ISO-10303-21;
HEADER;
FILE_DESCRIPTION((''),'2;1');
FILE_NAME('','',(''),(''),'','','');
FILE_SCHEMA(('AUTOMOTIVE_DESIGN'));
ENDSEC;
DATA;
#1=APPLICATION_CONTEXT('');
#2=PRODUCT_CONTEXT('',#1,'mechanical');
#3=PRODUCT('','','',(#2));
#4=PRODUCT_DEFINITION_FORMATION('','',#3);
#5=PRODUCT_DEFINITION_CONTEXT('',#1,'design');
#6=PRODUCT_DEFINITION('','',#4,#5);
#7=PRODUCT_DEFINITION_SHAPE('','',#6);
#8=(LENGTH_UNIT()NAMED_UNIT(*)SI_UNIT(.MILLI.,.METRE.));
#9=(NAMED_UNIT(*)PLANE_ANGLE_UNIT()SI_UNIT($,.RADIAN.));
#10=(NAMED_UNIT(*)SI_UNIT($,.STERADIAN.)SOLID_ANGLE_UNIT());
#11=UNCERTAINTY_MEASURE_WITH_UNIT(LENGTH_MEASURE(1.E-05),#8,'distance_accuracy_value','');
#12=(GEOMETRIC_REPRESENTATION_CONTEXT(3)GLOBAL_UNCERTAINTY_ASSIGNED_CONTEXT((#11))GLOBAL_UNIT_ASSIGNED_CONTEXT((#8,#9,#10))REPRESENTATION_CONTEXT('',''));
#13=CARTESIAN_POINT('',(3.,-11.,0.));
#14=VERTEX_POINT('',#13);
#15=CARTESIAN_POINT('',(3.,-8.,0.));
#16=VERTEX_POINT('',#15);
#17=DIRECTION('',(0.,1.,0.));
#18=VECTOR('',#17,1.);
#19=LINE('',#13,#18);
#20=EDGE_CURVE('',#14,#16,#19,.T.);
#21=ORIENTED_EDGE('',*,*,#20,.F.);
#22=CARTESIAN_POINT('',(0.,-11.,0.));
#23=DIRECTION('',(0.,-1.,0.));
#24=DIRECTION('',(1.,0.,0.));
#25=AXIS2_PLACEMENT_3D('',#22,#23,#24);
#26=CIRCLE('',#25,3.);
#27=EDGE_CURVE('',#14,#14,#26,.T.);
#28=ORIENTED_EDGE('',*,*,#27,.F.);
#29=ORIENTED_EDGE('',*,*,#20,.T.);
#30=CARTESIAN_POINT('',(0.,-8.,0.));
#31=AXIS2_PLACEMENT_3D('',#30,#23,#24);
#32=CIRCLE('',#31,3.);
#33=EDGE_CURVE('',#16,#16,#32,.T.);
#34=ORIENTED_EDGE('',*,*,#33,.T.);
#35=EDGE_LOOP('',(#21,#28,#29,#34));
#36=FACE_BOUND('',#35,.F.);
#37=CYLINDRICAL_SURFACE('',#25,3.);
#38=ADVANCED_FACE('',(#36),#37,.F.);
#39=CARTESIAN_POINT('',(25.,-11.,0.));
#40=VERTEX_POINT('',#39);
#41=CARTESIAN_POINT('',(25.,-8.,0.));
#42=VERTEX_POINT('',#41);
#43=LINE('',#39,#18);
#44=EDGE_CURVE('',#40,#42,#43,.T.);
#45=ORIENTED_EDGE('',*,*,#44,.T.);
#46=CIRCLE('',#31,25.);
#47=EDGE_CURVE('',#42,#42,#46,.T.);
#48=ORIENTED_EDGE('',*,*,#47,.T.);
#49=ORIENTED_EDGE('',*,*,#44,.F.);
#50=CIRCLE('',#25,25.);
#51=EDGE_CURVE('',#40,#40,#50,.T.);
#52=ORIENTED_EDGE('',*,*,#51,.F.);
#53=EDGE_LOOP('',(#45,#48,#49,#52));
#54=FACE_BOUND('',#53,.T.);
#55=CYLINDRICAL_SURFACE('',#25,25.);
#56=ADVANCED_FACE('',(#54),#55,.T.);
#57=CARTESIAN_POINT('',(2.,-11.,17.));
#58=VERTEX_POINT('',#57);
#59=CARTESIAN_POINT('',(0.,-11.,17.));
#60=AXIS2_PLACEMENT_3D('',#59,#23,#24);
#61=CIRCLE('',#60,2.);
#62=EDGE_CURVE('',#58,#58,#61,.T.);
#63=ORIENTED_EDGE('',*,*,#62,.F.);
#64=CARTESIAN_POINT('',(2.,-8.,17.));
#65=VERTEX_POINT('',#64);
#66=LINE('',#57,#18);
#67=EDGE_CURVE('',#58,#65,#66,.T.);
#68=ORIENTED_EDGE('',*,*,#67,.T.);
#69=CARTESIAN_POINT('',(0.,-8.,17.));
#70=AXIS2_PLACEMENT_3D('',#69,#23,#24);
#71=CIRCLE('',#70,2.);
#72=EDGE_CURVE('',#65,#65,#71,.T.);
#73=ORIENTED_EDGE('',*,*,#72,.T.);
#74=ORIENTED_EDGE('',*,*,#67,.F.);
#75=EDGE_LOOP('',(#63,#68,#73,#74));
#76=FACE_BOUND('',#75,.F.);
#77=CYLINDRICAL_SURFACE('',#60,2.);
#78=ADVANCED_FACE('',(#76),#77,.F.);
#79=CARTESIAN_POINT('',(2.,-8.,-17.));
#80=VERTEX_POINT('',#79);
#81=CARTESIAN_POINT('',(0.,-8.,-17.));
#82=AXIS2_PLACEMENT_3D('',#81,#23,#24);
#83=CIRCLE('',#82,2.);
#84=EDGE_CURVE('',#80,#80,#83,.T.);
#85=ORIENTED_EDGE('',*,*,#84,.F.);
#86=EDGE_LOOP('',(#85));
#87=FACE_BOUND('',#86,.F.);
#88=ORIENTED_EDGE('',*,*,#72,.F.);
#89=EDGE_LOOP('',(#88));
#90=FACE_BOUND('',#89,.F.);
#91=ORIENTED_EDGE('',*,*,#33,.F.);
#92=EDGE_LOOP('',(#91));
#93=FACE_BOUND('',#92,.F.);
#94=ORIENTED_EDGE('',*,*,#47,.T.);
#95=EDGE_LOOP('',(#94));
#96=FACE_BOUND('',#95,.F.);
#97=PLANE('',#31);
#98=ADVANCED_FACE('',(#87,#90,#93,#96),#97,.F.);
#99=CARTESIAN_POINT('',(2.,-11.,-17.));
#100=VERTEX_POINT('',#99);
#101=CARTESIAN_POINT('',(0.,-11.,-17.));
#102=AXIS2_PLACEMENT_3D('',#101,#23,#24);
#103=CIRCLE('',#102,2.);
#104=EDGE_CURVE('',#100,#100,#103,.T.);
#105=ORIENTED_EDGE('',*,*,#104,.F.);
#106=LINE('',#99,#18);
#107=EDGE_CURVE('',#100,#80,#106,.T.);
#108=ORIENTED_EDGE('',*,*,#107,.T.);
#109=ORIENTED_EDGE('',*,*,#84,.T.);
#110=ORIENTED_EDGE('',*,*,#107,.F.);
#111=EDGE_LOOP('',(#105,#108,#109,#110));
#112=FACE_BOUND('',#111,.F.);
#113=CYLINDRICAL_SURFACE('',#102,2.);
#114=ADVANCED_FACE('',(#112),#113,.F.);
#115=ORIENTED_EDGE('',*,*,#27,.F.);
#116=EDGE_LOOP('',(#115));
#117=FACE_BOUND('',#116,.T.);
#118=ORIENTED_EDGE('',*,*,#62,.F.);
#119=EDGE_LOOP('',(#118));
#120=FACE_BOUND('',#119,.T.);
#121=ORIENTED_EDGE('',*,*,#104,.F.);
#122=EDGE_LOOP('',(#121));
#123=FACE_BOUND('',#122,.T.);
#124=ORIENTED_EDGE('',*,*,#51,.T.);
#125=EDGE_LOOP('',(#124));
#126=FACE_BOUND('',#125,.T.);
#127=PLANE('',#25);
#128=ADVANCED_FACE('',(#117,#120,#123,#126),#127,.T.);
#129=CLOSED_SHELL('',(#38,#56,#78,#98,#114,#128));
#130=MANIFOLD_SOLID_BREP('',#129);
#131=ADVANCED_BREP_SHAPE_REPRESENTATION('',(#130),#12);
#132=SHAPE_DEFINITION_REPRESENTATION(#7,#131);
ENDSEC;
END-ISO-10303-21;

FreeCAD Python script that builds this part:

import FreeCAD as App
import Part
import Sketcher

doc = App.newDocument("Part")
body = doc.addObject("PartDesign::Body", "Body")

sketch1 = body.newObject("Sketcher::SketchObject", "Sketch")
sketch1.AttachmentSupport = (doc.getObject("XY_Plane"), [""])
sketch1.MapMode = "FlatFace"
sketch1.addGeometry([
    Part.Circle(App.Vector(0, 0, 0), App.Vector(0, 0, 1), 25),
    Part.Circle(App.Vector(0, -17, 0), App.Vector(0, 0, 1), 2),
    Part.Circle(App.Vector(0, 0, 0), App.Vector(0, 0, 1), 3),
    Part.Circle(App.Vector(0, 17, 0), App.Vector(0, 0, 1), 2),
], False)
sketch1.addConstraint([
    Sketcher.Constraint("Coincident", 0, 3, -1, 1),
    Sketcher.Constraint("Coincident", 2, 3, -1, 1),
    Sketcher.Constraint("Equal", 1, 3),
    Sketcher.Constraint("Symmetric", 1, 3, 3, 3, -1, 1),
    Sketcher.Constraint("PointOnObject", 1, 3, -2),
    Sketcher.Constraint("Diameter", 0, 50.0),
    Sketcher.Constraint("Diameter", 1, 4.0),
    Sketcher.Constraint("Diameter", 2, 6.0),
    Sketcher.Constraint("DistanceY", 1, 3, -1, 1, 17.0),
])
pad1 = body.newObject("PartDesign::Pad", "Pad")
pad1.Profile = sketch1
pad1.Length = 3
pad1.Reversed = True
body2 = doc.addObject("PartDesign::Body", "Body001")
doc.recompute()

body.Placement = App.Placement(App.Vector(0, 0, 0), App.Rotation(App.Vector(1, 0, 0), 90))
boolean = body2.newObject("PartDesign::Boolean", "Boolean")
boolean.Type = "Fuse"
boolean.addObjects([body])
body3 = doc.addObject("PartDesign::Body", "Body002")
doc.recompute()

body2.Placement = App.Placement(App.Vector(0, -11, 0), App.Rotation(App.Vector(0, 0, 1), 0))
boolean2 = body3.newObject("PartDesign::Boolean", "Boolean001")
boolean2.Type = "Fuse"
boolean2.addObjects([body2])

doc.recompute()
